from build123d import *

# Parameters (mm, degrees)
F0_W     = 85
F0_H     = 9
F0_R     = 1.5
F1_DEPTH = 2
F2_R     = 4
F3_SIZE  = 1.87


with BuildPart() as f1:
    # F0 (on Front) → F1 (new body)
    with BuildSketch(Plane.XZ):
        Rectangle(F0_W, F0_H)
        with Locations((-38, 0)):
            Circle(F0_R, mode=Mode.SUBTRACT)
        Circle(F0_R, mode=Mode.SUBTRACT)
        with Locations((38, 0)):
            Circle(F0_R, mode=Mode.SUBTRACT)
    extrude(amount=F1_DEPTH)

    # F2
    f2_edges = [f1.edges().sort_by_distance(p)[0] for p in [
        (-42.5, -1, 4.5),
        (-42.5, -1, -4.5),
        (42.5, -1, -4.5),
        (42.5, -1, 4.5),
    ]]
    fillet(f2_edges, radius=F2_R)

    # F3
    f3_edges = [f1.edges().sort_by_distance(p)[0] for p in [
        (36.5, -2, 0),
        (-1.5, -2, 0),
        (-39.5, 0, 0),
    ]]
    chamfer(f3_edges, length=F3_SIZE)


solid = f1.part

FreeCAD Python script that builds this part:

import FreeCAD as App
import Part
import Sketcher


def edges_at(feature, points):
    """Names of the edges that pass closest to the given points."""
    edges = feature.Shape.Edges
    near = lambda p: min(range(len(edges)), key=lambda i: edges[i].distToShape(Part.Vertex(*p))[0])
    return sorted({f"Edge{near(p) + 1}" for p in points})

doc = App.newDocument("Part")
params = doc.addObject("Spreadsheet::Sheet", "Params")
for row, (alias, value) in enumerate([
    ("sketch1_diameter", "3 mm"),
    ("sketch1_width", "85 mm"),
    ("sketch1_height", "9 mm"),
    ("pad1_length", "2 mm"),
    ("fillet_radius", "4 mm"),
    ("chamfer_size", "1.87 mm"),
], start=1):
    params.set(f"A{row}", alias)
    params.set(f"B{row}", "=" + value)
    params.setAlias(f"B{row}", alias)

body = doc.addObject("PartDesign::Body", "Body")

# Sketch on XZ plane
sketch1 = body.newObject("Sketcher::SketchObject", "Sketch")
sketch1.AttachmentSupport = (doc.getObject("XZ_Plane"), [""])
sketch1.MapMode = "FlatFace"
sketch1.addGeometry([
    Part.LineSegment(App.Vector(-42.5, 4.5, 0), App.Vector(-42.5, -4.5, 0)),  # 0
    Part.LineSegment(App.Vector(-42.5, -4.5, 0), App.Vector(42.5, -4.5, 0)),  # 1
    Part.LineSegment(App.Vector(42.5, -4.5, 0), App.Vector(42.5, 4.5, 0)),  # 2
    Part.LineSegment(App.Vector(42.5, 4.5, 0), App.Vector(-42.5, 4.5, 0)),  # 3
    Part.Circle(App.Vector(-38, 0, 0), App.Vector(0, 0, 1), 1.5),  # 4
    Part.Circle(App.Vector(0, 0, 0), App.Vector(0, 0, 1), 1.5),  # 5
    Part.Circle(App.Vector(38, 0, 0), App.Vector(0, 0, 1), 1.5),  # 6
], False)
sketch1.addConstraint([
    Sketcher.Constraint("Coincident", 0, 2, 1, 1),
    Sketcher.Constraint("Coincident", 1, 2, 2, 1),
    Sketcher.Constraint("Coincident", 2, 2, 3, 1),
    Sketcher.Constraint("Coincident", 3, 2, 0, 1),
    Sketcher.Constraint("Vertical", 0),
    Sketcher.Constraint("Horizontal", 1),
    Sketcher.Constraint("Vertical", 2),
    Sketcher.Constraint("Horizontal", 3),
    Sketcher.Constraint("Coincident", 5, 3, -1, 1),
    Sketcher.Constraint("Equal", 4, 5),
    Sketcher.Constraint("Equal", 5, 6),
    Sketcher.Constraint("Symmetric", 4, 3, 6, 3, -1, 1),
    Sketcher.Constraint("Symmetric", 0, 2, 2, 2, -1, 1),
    Sketcher.Constraint("PointOnObject", 4, 3, -1),
    Sketcher.Constraint("Diameter", 4, 3.0),
    Sketcher.Constraint("DistanceX", 1, 1, 1, 2, 85.0),
    Sketcher.Constraint("DistanceY", 0, 2, 0, 1, 9.0),
    Sketcher.Constraint("DistanceX", 4, 3, -1, 1, 38.0),
])
sketch1.setExpression("Constraints[14]", "Params.sketch1_diameter")
sketch1.setExpression("Constraints[15]", "Params.sketch1_width")
sketch1.setExpression("Constraints[16]", "Params.sketch1_height")
pad1 = body.newObject("PartDesign::Pad", "Pad")
pad1.Profile = sketch1
pad1.setExpression("Length", "Params.pad1_length")
doc.recompute()

fillet = body.newObject("PartDesign::Fillet", "Fillet")
fillet.Base = (pad1, edges_at(pad1, [
    (-42.5, -1, 4.5),
    (-42.5, -1, -4.5),
    (42.5, -1, -4.5),
    (42.5, -1, 4.5),
]))
fillet.setExpression("Radius", "Params.fillet_radius")
doc.recompute()

chamfer = body.newObject("PartDesign::Chamfer", "Chamfer")
chamfer.Base = (fillet, edges_at(fillet, [(36.5, -2, 0), (-1.5, -2, 0), (-39.5, 0, 0)]))
chamfer.setExpression("Size", "Params.chamfer_size")

doc.recompute()
